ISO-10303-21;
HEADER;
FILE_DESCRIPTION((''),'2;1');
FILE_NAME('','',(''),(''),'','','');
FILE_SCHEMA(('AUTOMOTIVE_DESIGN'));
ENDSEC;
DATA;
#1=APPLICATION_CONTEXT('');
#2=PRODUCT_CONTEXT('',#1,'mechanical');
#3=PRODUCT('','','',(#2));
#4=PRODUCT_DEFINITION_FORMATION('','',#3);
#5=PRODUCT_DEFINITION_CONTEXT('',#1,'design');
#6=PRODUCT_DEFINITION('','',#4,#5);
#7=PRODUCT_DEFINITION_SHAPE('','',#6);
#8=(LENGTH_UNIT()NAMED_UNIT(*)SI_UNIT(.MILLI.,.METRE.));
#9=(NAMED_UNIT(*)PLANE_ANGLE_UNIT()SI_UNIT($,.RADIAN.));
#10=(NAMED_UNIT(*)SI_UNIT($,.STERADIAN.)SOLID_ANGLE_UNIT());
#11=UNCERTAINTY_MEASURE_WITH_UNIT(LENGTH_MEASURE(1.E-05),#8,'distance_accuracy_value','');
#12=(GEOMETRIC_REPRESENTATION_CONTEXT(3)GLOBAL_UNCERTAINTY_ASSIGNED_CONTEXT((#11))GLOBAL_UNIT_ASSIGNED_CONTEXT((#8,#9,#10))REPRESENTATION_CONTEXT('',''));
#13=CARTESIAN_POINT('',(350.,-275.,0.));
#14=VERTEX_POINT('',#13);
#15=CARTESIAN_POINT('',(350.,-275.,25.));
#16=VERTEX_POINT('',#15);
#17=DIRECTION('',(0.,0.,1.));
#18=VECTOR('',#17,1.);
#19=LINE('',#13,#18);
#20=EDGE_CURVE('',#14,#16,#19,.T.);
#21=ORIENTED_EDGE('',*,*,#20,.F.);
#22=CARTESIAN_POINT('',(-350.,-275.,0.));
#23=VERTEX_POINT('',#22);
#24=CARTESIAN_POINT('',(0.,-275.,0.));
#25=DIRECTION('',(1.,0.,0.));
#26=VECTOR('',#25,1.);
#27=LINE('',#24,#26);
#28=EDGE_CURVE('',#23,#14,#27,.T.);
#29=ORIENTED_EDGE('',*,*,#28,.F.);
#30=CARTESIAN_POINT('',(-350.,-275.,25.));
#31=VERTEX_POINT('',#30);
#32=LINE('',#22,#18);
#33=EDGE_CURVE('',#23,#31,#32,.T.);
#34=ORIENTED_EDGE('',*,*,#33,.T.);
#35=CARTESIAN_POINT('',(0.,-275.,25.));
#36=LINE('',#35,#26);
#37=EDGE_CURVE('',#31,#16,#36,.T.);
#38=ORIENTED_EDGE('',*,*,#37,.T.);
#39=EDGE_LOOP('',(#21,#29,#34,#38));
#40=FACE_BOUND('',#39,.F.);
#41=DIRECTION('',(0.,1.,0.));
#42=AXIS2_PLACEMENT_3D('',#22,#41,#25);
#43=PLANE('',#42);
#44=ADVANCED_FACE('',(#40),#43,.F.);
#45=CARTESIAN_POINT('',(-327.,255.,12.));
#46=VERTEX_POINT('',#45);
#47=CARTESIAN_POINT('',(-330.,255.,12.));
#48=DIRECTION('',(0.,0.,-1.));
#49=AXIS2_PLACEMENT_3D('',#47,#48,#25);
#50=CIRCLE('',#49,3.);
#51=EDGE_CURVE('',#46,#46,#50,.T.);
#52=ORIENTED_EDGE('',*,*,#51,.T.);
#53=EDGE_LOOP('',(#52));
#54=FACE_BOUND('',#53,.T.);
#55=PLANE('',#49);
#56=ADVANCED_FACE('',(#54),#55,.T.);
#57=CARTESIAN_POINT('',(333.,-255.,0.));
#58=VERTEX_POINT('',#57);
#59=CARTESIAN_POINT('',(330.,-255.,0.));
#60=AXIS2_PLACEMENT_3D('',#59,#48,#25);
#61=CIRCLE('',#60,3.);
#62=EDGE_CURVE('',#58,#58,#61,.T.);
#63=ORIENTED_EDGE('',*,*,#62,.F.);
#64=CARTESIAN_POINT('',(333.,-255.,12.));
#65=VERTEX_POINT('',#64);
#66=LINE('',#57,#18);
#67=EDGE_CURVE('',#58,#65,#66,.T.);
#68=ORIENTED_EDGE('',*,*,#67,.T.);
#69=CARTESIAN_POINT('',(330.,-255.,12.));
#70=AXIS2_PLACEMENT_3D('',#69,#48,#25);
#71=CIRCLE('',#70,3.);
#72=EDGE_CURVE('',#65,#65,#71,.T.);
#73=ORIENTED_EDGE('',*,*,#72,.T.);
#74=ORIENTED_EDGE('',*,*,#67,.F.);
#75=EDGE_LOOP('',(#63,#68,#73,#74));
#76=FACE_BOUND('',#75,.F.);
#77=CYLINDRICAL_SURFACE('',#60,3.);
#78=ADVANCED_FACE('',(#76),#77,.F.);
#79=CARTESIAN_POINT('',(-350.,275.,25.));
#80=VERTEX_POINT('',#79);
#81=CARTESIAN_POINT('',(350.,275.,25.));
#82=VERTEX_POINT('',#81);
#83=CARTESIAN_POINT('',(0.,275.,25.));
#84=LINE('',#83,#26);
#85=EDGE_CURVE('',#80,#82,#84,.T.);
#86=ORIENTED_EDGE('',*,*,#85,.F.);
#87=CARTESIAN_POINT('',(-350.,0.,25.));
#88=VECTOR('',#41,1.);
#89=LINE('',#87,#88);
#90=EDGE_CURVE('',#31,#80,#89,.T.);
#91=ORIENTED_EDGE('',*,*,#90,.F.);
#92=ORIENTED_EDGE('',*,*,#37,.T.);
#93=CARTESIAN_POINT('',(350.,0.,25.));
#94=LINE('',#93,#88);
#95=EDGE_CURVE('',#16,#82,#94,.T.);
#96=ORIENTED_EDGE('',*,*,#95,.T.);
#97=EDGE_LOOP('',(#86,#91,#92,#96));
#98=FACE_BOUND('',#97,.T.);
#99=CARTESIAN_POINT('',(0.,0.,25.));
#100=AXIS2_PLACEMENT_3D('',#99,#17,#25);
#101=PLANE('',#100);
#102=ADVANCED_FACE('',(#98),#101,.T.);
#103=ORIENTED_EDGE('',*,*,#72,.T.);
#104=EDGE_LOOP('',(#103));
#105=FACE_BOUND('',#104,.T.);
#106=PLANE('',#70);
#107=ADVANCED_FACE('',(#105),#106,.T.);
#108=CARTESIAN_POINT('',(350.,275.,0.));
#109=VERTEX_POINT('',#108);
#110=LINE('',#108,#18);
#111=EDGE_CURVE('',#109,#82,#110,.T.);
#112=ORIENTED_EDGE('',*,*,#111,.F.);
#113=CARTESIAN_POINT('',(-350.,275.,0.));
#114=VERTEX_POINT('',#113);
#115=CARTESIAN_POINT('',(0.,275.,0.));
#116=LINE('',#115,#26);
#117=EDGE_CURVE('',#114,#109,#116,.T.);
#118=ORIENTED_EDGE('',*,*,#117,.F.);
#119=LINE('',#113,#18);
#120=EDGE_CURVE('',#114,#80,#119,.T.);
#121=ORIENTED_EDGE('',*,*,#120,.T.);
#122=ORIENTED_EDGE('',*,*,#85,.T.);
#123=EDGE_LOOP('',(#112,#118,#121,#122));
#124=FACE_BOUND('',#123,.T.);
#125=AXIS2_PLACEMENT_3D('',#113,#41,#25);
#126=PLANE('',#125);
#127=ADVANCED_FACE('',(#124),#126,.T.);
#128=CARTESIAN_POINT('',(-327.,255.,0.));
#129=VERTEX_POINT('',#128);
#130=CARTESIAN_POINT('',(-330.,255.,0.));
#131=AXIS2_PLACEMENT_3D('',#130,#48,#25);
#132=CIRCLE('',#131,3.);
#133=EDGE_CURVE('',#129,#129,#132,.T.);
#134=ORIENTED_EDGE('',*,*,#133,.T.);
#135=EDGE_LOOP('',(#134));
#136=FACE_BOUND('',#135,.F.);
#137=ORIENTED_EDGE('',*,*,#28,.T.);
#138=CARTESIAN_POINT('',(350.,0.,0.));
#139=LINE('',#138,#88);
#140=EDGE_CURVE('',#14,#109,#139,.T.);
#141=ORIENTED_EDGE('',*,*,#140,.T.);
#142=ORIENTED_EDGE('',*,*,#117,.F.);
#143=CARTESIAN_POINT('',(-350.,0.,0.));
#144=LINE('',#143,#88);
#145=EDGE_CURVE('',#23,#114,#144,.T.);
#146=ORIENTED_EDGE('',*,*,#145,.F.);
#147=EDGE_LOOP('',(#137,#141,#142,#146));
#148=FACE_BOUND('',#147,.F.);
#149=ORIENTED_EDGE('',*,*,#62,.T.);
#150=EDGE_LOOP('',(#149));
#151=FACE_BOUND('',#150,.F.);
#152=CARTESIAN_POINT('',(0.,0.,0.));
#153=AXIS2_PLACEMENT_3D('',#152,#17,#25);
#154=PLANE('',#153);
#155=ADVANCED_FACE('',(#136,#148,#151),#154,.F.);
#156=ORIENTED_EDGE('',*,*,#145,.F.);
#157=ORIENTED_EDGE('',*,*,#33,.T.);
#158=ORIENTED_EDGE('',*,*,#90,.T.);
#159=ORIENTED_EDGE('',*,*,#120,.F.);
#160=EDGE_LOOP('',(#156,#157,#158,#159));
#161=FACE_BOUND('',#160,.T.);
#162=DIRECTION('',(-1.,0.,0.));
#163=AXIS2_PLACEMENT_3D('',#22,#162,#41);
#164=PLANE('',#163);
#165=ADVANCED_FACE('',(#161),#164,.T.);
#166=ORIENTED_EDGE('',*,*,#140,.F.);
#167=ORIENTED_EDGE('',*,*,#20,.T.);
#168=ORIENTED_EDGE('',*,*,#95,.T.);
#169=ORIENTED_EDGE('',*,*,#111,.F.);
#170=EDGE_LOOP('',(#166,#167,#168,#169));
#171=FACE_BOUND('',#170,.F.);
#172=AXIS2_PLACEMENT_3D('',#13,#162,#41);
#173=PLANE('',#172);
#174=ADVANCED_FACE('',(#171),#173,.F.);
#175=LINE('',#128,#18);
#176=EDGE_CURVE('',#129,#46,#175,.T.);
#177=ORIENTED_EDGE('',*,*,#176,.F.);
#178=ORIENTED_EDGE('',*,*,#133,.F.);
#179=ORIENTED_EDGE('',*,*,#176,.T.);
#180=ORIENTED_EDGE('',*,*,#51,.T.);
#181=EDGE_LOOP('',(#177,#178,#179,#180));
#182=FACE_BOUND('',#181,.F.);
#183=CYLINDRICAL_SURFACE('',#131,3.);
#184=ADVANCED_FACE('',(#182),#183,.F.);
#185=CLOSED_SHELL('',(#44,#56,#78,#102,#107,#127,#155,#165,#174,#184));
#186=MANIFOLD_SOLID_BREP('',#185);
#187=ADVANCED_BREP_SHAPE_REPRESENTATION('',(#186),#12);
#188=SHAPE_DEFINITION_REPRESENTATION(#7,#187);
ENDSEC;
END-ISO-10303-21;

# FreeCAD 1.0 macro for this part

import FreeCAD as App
import Part
import Sketcher
Q = App.Units.Quantity


def add_polygon(sketch, points):
    """Adds a closed chain of lines whose ends are joined by coincident constraints."""
    first, n = sketch.GeometryCount, len(points)
    for a, b in zip(points, points[1:] + points[:1]):
        sketch.addGeometry(Part.LineSegment(App.Vector(*a, 0), App.Vector(*b, 0)), False)
    for i in range(n):
        sketch.addConstraint(Sketcher.Constraint("Coincident", first + i, 2, first + (i + 1) % n, 1))

doc = App.newDocument("Part")
body = doc.addObject("PartDesign::Body", "Body")

# Sketch on XY plane
sketch1 = body.newObject("Sketcher::SketchObject", "Sketch")
sketch1.AttachmentSupport = (doc.getObject("XY_Plane"), [""])
sketch1.MapMode = "FlatFace"
add_polygon(sketch1, [(-350, 275), (-350, -275), (350, -275), (350, 275)])  # lines 0-3
sketch1.addConstraint([
    Sketcher.Constraint("Vertical", 0),
    Sketcher.Constraint("Horizontal", 1),
    Sketcher.Constraint("Vertical", 2),
    Sketcher.Constraint("Horizontal", 3),
    Sketcher.Constraint("Symmetric", 0, 2, 2, 2, -1, 1),
    Sketcher.Constraint("DistanceX", 1, 1, 1, 2, Q("700 mm")),
    Sketcher.Constraint("DistanceY", 0, 2, 0, 1, Q("550 mm")),
])
pad1 = body.newObject("PartDesign::Pad", "Pad")
pad1.Profile = sketch1
pad1.Length = 25

# Sketch on XY plane
sketch2 = body.newObject("Sketcher::SketchObject", "Sketch001")
sketch2.AttachmentSupport = (doc.getObject("XY_Plane"), [""])
sketch2.MapMode = "FlatFace"
sketch2.addGeometry(Part.Circle(App.Vector(330, -255, 0), App.Vector(0, 0, 1), 3), False)
sketch2.addConstraint([
    Sketcher.Constraint("Diameter", 0, Q("6 mm")),
    Sketcher.Constraint("DistanceX", -1, 1, 0, 3, Q("330 mm")),
    Sketcher.Constraint("DistanceY", 0, 3, -1, 1, Q("255 mm")),
])
pocket1 = body.newObject("PartDesign::Pocket", "Pocket")
pocket1.Profile = sketch2
pocket1.Length = 12
pocket1.Reversed = True

# Sketch on XY plane
sketch3 = body.newObject("Sketcher::SketchObject", "Sketch002")
sketch3.AttachmentSupport = (doc.getObject("XY_Plane"), [""])
sketch3.MapMode = "FlatFace"
sketch3.addGeometry(Part.Circle(App.Vector(-330, 255, 0), App.Vector(0, 0, 1), 3), False)
sketch3.addConstraint([
    Sketcher.Constraint("Diameter", 0, Q("6 mm")),
    Sketcher.Constraint("DistanceX", 0, 3, -1, 1, Q("330 mm")),
    Sketcher.Constraint("DistanceY", -1, 1, 0, 3, Q("255 mm")),
])
pocket2 = body.newObject("PartDesign::Pocket", "Pocket001")
pocket2.Profile = sketch3
pocket2.Length = 12
pocket2.Reversed = True

doc.recompute()
